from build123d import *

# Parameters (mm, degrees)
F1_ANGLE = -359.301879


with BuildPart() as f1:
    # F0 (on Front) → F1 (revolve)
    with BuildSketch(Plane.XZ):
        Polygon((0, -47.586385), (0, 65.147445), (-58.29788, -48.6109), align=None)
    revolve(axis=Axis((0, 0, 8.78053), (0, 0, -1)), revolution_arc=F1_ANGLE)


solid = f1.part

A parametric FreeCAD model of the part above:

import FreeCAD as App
import Part
import Sketcher

doc = App.newDocument("Part")
body = doc.addObject("PartDesign::Body", "Body")

# Sketch on XZ plane
sketch1 = body.newObject("Sketcher::SketchObject", "Sketch")
sketch1.AttachmentSupport = (doc.getObject("XZ_Plane"), [""])
sketch1.MapMode = "FlatFace"
sketch1.addGeometry([
    Part.LineSegment(App.Vector(0, -48, 0), App.Vector(0, 65, 0)),
    Part.LineSegment(App.Vector(0, 65, 0), App.Vector(-58, -49, 0)),
    Part.LineSegment(App.Vector(-58, -49, 0), App.Vector(0, -48, 0)),
], False)
sketch1.addConstraint([
    Sketcher.Constraint("Coincident", 0, 2, 1, 1),
    Sketcher.Constraint("Coincident", 1, 2, 2, 1),
    Sketcher.Constraint("Coincident", 2, 2, 0, 1),
    Sketcher.Constraint("Vertical", 0),
    Sketcher.Constraint("PointOnObject", 0, 2, -2),
    Sketcher.Constraint("DistanceY", 0, 1, 0, 2, 112.73383),
    Sketcher.Constraint("DistanceY", 1, 2, -1, 1, 48.6109),
    Sketcher.Constraint("Distance", 1, 127.82646),
    Sketcher.Constraint("Distance", 2, 58.306882),
])
revolution = body.newObject("PartDesign::Revolution", "Revolution")
revolution.Profile = sketch1
revolution.ReferenceAxis = (sketch1, ["V_Axis"])
revolution.Angle = 359.301879

doc.recompute()
